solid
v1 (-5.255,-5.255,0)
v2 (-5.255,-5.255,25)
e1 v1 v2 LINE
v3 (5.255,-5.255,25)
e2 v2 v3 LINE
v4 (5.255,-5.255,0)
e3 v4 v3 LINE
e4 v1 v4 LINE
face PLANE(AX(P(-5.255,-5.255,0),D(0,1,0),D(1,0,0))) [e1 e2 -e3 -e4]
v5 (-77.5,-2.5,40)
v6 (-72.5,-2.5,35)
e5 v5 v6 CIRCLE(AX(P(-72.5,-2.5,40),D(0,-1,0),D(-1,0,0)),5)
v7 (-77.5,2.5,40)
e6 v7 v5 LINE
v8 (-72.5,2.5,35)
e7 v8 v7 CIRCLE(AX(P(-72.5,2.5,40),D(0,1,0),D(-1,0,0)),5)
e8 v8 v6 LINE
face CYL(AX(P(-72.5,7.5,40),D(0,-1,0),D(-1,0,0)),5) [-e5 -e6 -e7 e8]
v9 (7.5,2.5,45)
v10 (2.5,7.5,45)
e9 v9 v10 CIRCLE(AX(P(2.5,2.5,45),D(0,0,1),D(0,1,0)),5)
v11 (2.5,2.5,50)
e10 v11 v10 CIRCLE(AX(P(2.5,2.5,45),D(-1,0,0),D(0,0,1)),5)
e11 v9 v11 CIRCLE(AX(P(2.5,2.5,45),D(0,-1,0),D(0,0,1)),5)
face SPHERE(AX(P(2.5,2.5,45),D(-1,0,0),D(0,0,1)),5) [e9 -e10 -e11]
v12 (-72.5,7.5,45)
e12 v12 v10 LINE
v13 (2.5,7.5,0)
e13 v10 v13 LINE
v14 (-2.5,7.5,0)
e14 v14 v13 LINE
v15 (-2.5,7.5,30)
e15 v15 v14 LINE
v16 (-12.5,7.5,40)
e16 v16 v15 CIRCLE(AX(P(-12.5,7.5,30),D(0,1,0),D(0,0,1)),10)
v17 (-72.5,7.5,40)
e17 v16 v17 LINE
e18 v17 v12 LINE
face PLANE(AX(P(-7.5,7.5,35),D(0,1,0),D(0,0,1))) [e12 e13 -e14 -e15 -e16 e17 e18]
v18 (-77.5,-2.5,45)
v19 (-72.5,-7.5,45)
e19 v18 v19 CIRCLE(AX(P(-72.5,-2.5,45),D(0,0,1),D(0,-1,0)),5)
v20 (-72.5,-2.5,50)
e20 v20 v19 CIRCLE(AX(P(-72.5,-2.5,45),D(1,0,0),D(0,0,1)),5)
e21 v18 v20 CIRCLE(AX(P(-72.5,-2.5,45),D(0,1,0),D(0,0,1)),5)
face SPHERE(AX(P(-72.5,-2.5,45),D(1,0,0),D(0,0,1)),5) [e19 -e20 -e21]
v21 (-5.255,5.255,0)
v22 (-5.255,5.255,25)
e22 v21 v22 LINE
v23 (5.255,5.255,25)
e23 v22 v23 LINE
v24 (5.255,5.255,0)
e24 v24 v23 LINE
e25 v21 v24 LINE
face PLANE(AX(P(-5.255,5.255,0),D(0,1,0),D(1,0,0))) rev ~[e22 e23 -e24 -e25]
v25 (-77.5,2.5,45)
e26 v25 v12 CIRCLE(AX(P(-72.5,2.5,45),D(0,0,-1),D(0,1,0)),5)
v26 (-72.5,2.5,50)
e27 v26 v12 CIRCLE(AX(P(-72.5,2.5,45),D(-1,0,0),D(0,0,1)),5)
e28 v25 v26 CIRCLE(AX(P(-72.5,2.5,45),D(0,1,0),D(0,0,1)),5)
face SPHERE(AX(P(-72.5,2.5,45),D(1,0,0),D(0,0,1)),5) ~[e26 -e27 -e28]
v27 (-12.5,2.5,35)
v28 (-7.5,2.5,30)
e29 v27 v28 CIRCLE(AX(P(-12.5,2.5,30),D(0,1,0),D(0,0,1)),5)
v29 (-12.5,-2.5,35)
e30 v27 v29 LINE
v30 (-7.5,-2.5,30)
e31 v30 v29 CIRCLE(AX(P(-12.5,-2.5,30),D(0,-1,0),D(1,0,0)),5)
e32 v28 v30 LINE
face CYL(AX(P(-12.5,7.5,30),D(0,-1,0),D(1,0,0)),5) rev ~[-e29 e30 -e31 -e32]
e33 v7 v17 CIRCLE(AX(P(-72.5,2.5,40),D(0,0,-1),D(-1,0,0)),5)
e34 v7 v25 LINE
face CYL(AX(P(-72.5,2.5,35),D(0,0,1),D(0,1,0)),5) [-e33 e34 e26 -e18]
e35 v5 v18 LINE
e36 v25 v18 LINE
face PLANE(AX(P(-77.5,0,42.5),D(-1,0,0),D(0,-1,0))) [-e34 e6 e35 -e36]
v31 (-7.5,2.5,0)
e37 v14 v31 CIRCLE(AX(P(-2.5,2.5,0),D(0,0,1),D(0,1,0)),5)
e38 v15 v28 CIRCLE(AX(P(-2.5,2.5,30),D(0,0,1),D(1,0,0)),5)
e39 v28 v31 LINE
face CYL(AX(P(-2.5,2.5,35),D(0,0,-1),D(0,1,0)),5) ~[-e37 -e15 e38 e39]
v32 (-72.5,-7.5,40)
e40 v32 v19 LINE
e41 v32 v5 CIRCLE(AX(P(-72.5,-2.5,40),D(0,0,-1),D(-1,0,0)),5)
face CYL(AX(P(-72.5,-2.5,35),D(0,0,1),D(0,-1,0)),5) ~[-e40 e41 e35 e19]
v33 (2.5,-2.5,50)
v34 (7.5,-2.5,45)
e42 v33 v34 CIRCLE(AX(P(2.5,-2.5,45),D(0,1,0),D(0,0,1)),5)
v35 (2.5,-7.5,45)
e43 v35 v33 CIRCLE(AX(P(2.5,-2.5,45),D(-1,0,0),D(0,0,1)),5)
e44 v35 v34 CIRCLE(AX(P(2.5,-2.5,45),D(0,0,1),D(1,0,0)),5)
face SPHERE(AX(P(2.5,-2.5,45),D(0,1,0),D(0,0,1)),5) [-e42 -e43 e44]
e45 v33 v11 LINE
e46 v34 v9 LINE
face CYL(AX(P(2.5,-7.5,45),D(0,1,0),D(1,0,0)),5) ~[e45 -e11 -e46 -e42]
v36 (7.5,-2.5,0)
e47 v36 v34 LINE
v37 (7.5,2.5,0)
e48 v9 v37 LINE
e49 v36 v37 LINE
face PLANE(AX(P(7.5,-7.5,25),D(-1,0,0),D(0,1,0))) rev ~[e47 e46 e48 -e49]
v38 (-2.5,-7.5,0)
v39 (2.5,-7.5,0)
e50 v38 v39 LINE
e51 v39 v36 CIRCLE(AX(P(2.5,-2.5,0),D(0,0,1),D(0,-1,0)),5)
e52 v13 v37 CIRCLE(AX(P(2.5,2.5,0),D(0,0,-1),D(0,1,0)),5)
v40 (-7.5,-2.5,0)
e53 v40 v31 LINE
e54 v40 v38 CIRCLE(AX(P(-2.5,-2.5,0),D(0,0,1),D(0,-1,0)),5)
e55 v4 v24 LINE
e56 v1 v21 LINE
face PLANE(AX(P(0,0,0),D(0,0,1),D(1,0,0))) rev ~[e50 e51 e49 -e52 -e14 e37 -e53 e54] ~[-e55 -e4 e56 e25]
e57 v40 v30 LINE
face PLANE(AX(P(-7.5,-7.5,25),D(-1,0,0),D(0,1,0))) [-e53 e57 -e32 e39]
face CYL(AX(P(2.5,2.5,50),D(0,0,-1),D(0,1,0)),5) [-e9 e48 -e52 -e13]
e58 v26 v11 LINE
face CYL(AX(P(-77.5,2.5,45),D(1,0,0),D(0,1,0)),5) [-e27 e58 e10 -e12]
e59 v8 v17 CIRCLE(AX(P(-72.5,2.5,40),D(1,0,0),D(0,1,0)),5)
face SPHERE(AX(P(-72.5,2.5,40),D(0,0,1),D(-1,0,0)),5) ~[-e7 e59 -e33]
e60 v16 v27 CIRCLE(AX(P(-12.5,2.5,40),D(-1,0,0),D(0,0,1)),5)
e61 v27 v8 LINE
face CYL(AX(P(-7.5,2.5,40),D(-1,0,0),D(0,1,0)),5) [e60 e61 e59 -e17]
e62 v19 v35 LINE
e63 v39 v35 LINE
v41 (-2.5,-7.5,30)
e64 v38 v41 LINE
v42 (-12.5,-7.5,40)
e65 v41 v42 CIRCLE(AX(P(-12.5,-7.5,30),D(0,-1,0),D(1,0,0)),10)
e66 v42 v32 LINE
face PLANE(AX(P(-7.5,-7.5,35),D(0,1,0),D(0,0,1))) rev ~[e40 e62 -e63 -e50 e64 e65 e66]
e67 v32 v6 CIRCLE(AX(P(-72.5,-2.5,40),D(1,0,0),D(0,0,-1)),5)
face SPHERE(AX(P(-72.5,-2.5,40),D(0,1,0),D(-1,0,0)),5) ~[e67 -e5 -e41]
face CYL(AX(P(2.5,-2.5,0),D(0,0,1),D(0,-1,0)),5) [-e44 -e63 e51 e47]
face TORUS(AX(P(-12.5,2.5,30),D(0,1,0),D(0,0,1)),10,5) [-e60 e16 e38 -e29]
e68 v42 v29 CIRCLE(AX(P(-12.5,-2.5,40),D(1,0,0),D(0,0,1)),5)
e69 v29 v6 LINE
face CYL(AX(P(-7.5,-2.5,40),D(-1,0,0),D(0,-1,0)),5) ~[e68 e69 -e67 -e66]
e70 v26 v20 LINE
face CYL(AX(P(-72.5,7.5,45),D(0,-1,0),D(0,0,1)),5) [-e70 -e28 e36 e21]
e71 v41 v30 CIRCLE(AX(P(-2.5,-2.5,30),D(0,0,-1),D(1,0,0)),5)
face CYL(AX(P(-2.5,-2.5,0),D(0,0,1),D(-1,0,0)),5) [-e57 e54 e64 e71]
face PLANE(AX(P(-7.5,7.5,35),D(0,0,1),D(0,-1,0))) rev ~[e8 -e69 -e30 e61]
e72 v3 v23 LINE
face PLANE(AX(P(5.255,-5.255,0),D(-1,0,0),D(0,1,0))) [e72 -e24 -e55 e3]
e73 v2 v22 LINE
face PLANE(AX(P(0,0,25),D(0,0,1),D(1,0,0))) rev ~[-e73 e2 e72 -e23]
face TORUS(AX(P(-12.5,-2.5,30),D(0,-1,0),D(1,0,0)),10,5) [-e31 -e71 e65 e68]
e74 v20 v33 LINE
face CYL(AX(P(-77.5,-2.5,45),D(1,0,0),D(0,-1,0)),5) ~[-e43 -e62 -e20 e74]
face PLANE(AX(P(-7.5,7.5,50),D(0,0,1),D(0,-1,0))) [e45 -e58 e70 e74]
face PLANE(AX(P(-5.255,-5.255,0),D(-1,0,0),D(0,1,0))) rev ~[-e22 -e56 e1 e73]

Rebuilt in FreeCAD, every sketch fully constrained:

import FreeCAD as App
import Part
import Sketcher
from FreeCAD import Vector
Q = App.Units.Quantity


def edges_at(feature, points):
    """Names of the edges that pass closest to the given points."""
    edges = feature.Shape.Edges
    near = lambda p: min(range(len(edges)), key=lambda i: edges[i].distToShape(Part.Vertex(*p))[0])
    return sorted({f"Edge{near(p) + 1}" for p in points})

doc = App.newDocument("Part")
params = doc.addObject("Spreadsheet::Sheet", "Params")
for row, (alias, value) in enumerate([
    ("sketch1_width", "15 mm"),
    ("sketch1_width2", "10.51 mm"),
    ("pad1_length", "25 mm"),
    ("sketch2_width", "15 mm"),
    ("pad2_length", "25 mm"),
    ("sketch3_width", "15 mm"),
    ("pad3_length", "70 mm"),
    ("fillet_radius", "5 mm"),
], start=1):
    params.set(f"A{row}", alias)
    params.set(f"B{row}", "=" + value)
    params.setAlias(f"B{row}", alias)

body = doc.addObject("PartDesign::Body", "Body")

sketch1 = doc.addObject("Sketcher::SketchObject", "Sketch")
body.addObject(sketch1)
sketch1.AttachmentSupport = (doc.XY_Plane, [""])
sketch1.MapMode = "FlatFace"
sketch1.addGeometry(Part.LineSegment(Vector(-7.5, 7.5, 0), Vector(-7.5, -7.5, 0)), False)
sketch1.addGeometry(Part.LineSegment(Vector(-7.5, -7.5, 0), Vector(7.5, -7.5, 0)), False)
sketch1.addGeometry(Part.LineSegment(Vector(7.5, -7.5, 0), Vector(7.5, 7.5, 0)), False)
sketch1.addGeometry(Part.LineSegment(Vector(7.5, 7.5, 0), Vector(-7.5, 7.5, 0)), False)
sketch1.addGeometry(Part.LineSegment(Vector(5.255, -5.255, 0), Vector(-5.255, -5.255, 0)), False)
sketch1.addGeometry(Part.LineSegment(Vector(-5.255, -5.255, 0), Vector(-5.255, 5.255, 0)), False)
sketch1.addGeometry(Part.LineSegment(Vector(-5.255, 5.255, 0), Vector(5.255, 5.255, 0)), False)
sketch1.addGeometry(Part.LineSegment(Vector(5.255, 5.255, 0), Vector(5.255, -5.255, 0)), False)
sketch1.addConstraint(Sketcher.Constraint("Coincident", 0, 2, 1, 1))
sketch1.addConstraint(Sketcher.Constraint("Coincident", 1, 2, 2, 1))
sketch1.addConstraint(Sketcher.Constraint("Coincident", 2, 2, 3, 1))
sketch1.addConstraint(Sketcher.Constraint("Coincident", 3, 2, 0, 1))
sketch1.addConstraint(Sketcher.Constraint("Coincident", 4, 2, 5, 1))
sketch1.addConstraint(Sketcher.Constraint("Coincident", 5, 2, 6, 1))
sketch1.addConstraint(Sketcher.Constraint("Coincident", 6, 2, 7, 1))
sketch1.addConstraint(Sketcher.Constraint("Coincident", 7, 2, 4, 1))
sketch1.addConstraint(Sketcher.Constraint("Vertical", 0))
sketch1.addConstraint(Sketcher.Constraint("Horizontal", 1))
sketch1.addConstraint(Sketcher.Constraint("Vertical", 2))
sketch1.addConstraint(Sketcher.Constraint("Horizontal", 3))
sketch1.addConstraint(Sketcher.Constraint("Horizontal", 4))
sketch1.addConstraint(Sketcher.Constraint("Vertical", 5))
sketch1.addConstraint(Sketcher.Constraint("Horizontal", 6))
sketch1.addConstraint(Sketcher.Constraint("Vertical", 7))
sketch1.addConstraint(Sketcher.Constraint("Symmetric", 0, 2, 2, 2, -1, 1))
sketch1.addConstraint(Sketcher.Constraint("Symmetric", 4, 2, 6, 2, -1, 1))
sketch1.addConstraint(Sketcher.Constraint("Equal", 3, 0))
sketch1.addConstraint(Sketcher.Constraint("Equal", 6, 5))
sketch1.addConstraint(Sketcher.Constraint("DistanceX", 1, 1, 1, 2, Q("15 mm")))
sketch1.addConstraint(Sketcher.Constraint("DistanceX", 4, 2, 4, 1, Q("10.51 mm")))
sketch1.setExpression("Constraints[20]", "Params.sketch1_width")
sketch1.setExpression("Constraints[21]", "Params.sketch1_width2")
pad1 = doc.addObject("PartDesign::Pad", "Pad")
body.addObject(pad1)
pad1.Profile = sketch1
pad1.setExpression("Length", "Params.pad1_length")

sketch2 = doc.addObject("Sketcher::SketchObject", "Sketch001")
body.addObject(sketch2)
sketch2.AttachmentSupport = (doc.XY_Plane, [""])
sketch2.MapMode = "FlatFace"
sketch2.AttachmentOffset = App.Placement(Vector(0, 0, 25), App.Rotation())
sketch2.addGeometry(Part.LineSegment(Vector(-7.5, 7.5, 0), Vector(-7.5, -7.5, 0)), False)
sketch2.addGeometry(Part.LineSegment(Vector(-7.5, -7.5, 0), Vector(7.5, -7.5, 0)), False)
sketch2.addGeometry(Part.LineSegment(Vector(7.5, -7.5, 0), Vector(7.5, 7.5, 0)), False)
sketch2.addGeometry(Part.LineSegment(Vector(7.5, 7.5, 0), Vector(-7.5, 7.5, 0)), False)
sketch2.addConstraint(Sketcher.Constraint("Coincident", 0, 2, 1, 1))
sketch2.addConstraint(Sketcher.Constraint("Coincident", 1, 2, 2, 1))
sketch2.addConstraint(Sketcher.Constraint("Coincident", 2, 2, 3, 1))
sketch2.addConstraint(Sketcher.Constraint("Coincident", 3, 2, 0, 1))
sketch2.addConstraint(Sketcher.Constraint("Vertical", 0))
sketch2.addConstraint(Sketcher.Constraint("Horizontal", 1))
sketch2.addConstraint(Sketcher.Constraint("Vertical", 2))
sketch2.addConstraint(Sketcher.Constraint("Horizontal", 3))
sketch2.addConstraint(Sketcher.Constraint("Symmetric", 0, 2, 2, 2, -1, 1))
sketch2.addConstraint(Sketcher.Constraint("Equal", 3, 0))
sketch2.addConstraint(Sketcher.Constraint("DistanceX", 1, 1, 1, 2, Q("15 mm")))
sketch2.setExpression("Constraints[10]", "Params.sketch2_width")
pad2 = doc.addObject("PartDesign::Pad", "Pad001")
body.addObject(pad2)
pad2.Profile = sketch2
pad2.setExpression("Length", "Params.pad2_length")

sketch3 = doc.addObject("Sketcher::SketchObject", "Sketch002")
body.addObject(sketch3)
sketch3.AttachmentSupport = (doc.YZ_Plane, [""])
sketch3.MapMode = "FlatFace"
sketch3.AttachmentOffset = App.Placement(Vector(0, 0, -7.5), App.Rotation())
sketch3.addGeometry(Part.LineSegment(Vector(7.5, 50, 0), Vector(7.5, 35, 0)), False)
sketch3.addGeometry(Part.LineSegment(Vector(7.5, 35, 0), Vector(-7.5, 35, 0)), False)
sketch3.addGeometry(Part.LineSegment(Vector(-7.5, 35, 0), Vector(-7.5, 50, 0)), False)
sketch3.addGeometry(Part.LineSegment(Vector(-7.5, 50, 0), Vector(7.5, 50, 0)), False)
sketch3.addConstraint(Sketcher.Constraint("Coincident", 0, 2, 1, 1))
sketch3.addConstraint(Sketcher.Constraint("Coincident", 1, 2, 2, 1))
sketch3.addConstraint(Sketcher.Constraint("Coincident", 2, 2, 3, 1))
sketch3.addConstraint(Sketcher.Constraint("Coincident", 3, 2, 0, 1))
sketch3.addConstraint(Sketcher.Constraint("Vertical", 0))
sketch3.addConstraint(Sketcher.Constraint("Horizontal", 1))
sketch3.addConstraint(Sketcher.Constraint("Vertical", 2))
sketch3.addConstraint(Sketcher.Constraint("Horizontal", 3))
sketch3.addConstraint(Sketcher.Constraint("Equal", 3, 0))
sketch3.addConstraint(Sketcher.Constraint("DistanceX", 1, 2, 1, 1, Q("15 mm")))
sketch3.addConstraint(Sketcher.Constraint("DistanceY", -1, 1, 0, 2, Q("35 mm")))
sketch3.addConstraint(Sketcher.Constraint("DistanceX", -1, 1, 0, 2, Q("7.5 mm")))
sketch3.setExpression("Constraints[9]", "Params.sketch3_width")
pad3 = doc.addObject("PartDesign::Pad", "Pad002")
body.addObject(pad3)
pad3.Profile = sketch3
pad3.setExpression("Length", "Params.pad3_length")
pad3.Reversed = True
doc.recompute()

fillet = doc.addObject("PartDesign::Fillet", "Fillet")
body.addObject(fillet)
fillet.Base = (pad3, edges_at(pad3, [
    (-35, 7.5, 50),
    (7.5, 0, 50),
    (-35, -7.5, 50),
    (7.5, -7.5, 25),
    (7.5, 7.5, 25),
    (-77.5, 0, 50),
    (-77.5, 7.5, 42.5),
    (-77.5, 0, 35),
    (-77.5, -7.5, 42.5),
    (-42.5, 7.5, 35),
    (-7.5, 7.5, 17.5),
    (-7.5, -7.5, 17.5),
    (-42.5, -7.5, 35),
    (-7.5, 0, 35),
]))
fillet.setExpression("Radius", "Params.fillet_radius")

doc.recompute()
